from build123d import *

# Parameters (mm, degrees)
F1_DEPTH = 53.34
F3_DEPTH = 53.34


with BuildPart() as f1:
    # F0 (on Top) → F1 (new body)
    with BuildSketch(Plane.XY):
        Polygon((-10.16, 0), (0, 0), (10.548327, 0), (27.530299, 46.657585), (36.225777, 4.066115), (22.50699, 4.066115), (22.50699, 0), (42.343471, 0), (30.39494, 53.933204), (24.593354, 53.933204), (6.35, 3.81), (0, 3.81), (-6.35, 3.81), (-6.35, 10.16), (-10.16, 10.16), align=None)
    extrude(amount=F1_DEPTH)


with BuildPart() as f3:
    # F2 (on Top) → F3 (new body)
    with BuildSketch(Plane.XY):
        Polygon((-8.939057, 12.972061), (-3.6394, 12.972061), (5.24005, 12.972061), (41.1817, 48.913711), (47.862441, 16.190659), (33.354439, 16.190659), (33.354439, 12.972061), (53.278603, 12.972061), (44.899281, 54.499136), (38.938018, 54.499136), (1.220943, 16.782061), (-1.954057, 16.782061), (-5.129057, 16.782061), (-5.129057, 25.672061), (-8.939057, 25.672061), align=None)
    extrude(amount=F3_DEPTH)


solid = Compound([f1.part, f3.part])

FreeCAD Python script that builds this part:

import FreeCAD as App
import Part
import Sketcher

V = App.Vector
Q = App.Units.Quantity


def add_polygon(sketch, points):
    """Adds a closed chain of lines whose ends are joined by coincident constraints."""
    first, n = sketch.GeometryCount, len(points)
    for a, b in zip(points, points[1:] + points[:1]):
        sketch.addGeometry(Part.LineSegment(App.Vector(*a, 0), App.Vector(*b, 0)), False)
    for i in range(n):
        sketch.addConstraint(Sketcher.Constraint("Coincident", first + i, 2, first + (i + 1) % n, 1))

doc = App.newDocument("Part")
body = doc.addObject("PartDesign::Body", "Body")

# Sketch on XY plane
sketch1 = body.newObject("Sketcher::SketchObject", "Sketch")
sketch1.AttachmentSupport = (doc.getObject("XY_Plane"), [""])
sketch1.MapMode = "FlatFace"
add_polygon(sketch1, [(-10.2, 0), (10.5, 0), (27.5, 46.7), (36.2, 4.1), (22.5, 4.1), (22.5, 0), (42.3, 0), (30.4, 53.9), (24.6, 53.9), (6.3, 3.8), (-6.3, 3.8), (-6.3, 10.2), (-10.2, 10.2)])  # lines 0-12
sketch1.addConstraint([
    Sketcher.Constraint("Horizontal", 0),
    Sketcher.Constraint("Horizontal", 3),
    Sketcher.Constraint("Vertical", 4),
    Sketcher.Constraint("Horizontal", 5),
    Sketcher.Constraint("Horizontal", 7),
    Sketcher.Constraint("Horizontal", 9),
    Sketcher.Constraint("Vertical", 10),
    Sketcher.Constraint("Horizontal", 11),
    Sketcher.Constraint("Vertical", 12),
    Sketcher.Constraint("PointOnObject", 0, 2, -1),
    Sketcher.Constraint("PointOnObject", 4, 2, -1),
    Sketcher.Constraint("Parallel", 1, 8),
    Sketcher.Constraint("DistanceX", 9, 2, 9, 1, Q("0.5 in")),
    Sketcher.Constraint("DistanceY", 12, 2, 12, 1, Q("0.4 in")),
    Sketcher.Constraint("Angle", 1, Q("70 deg")),
    Sketcher.Constraint("Distance", 8, Q("2.1 in")),
    Sketcher.Constraint("DistanceX", 11, 2, 11, 1, Q("0.15 in")),
    Sketcher.Constraint("DistanceY", 10, 1, 10, 2, Q("0.25 in")),
    Sketcher.Constraint("DistanceX", 11, 2, -1, 1, Q("0.4 in")),
    Sketcher.Constraint("DistanceX", 5, 1, 5, 2, Q("19.836481 mm")),
    Sketcher.Constraint("DistanceX", -1, 1, 1, 2, Q("27.530299 mm")),
    Sketcher.Constraint("DistanceX", 0, 1, 0, 2, Q("20.708327 mm")),
    Sketcher.Constraint("DistanceX", 3, 2, 3, 1, Q("13.718787 mm")),
    Sketcher.Constraint("DistanceX", 7, 2, 7, 1, Q("5.801586 mm")),
    Sketcher.Constraint("DistanceY", 4, 2, 4, 1, Q("4.066115 mm")),
    Sketcher.Constraint("DistanceX", -1, 1, 3, 2, Q("22.50699 mm")),
])
pad1 = body.newObject("PartDesign::Pad", "Pad")
pad1.Profile = sketch1
pad1.Length = Q("2.1 in")
body2 = doc.addObject("PartDesign::Body", "Body001")

# Sketch on XY plane
sketch2 = body2.newObject("Sketcher::SketchObject", "Sketch001")
sketch2.AttachmentSupport = (doc.getObject("XY_Plane001"), [""])
sketch2.MapMode = "FlatFace"
add_polygon(sketch2, [(-8.9, 13), (5.2, 13), (41.2, 48.9), (47.9, 16.2), (33.4, 16.2), (33.4, 13), (53.3, 13), (44.9, 54.5), (38.9, 54.5), (1.2, 16.8), (-5.1, 16.8), (-5.1, 25.7), (-8.9, 25.7)])  # lines 0-12
sketch2.addConstraint([
    Sketcher.Constraint("Horizontal", 0),
    Sketcher.Constraint("Horizontal", 3),
    Sketcher.Constraint("Vertical", 4),
    Sketcher.Constraint("Horizontal", 5),
    Sketcher.Constraint("Horizontal", 7),
    Sketcher.Constraint("Horizontal", 9),
    Sketcher.Constraint("Vertical", 10),
    Sketcher.Constraint("Horizontal", 11),
    Sketcher.Constraint("Vertical", 12),
    Sketcher.Constraint("Parallel", 1, 8),
    Sketcher.Constraint("Horizontal", 0, 2, 4, 2),
    Sketcher.Constraint("DistanceY", 12, 2, 12, 1, Q("0.5 in")),
    Sketcher.Constraint("Angle", 1, Q("45 deg")),
    Sketcher.Constraint("Distance", 8, Q("2.1 in")),
    Sketcher.Constraint("DistanceX", 9, 2, 9, 1, Q("0.25 in")),
    Sketcher.Constraint("DistanceX", 11, 2, 11, 1, Q("0.15 in")),
    Sketcher.Constraint("DistanceY", 10, 1, 10, 2, Q("0.35 in")),
    Sketcher.Constraint("DistanceX", 3, 2, 3, 1, Q("14.508002 mm")),
    Sketcher.Constraint("DistanceY", 4, 2, 4, 1, Q("3.218598 mm")),
    Sketcher.Constraint("DistanceX", -1, 1, 1, 2, Q("41.1817 mm")),
    Sketcher.Constraint("Distance", 1, Q("50.829169 mm")),
    Sketcher.Constraint("Distance", 2, Q("33.39806 mm")),
    Sketcher.Constraint("Distance", 6, Q("42.364029 mm")),
    Sketcher.Constraint("DistanceX", 0, 1, 0, 2, Q("14.179107 mm")),
    Sketcher.Constraint("DistanceX", 5, 1, 5, 2, Q("19.924164 mm")),
    Sketcher.Constraint("DistanceY", -1, 1, 0, 2, Q("12.972061 mm")),
])
pad2 = body2.newObject("PartDesign::Pad", "Pad001")
pad2.Profile = sketch2
pad2.Length = Q("2.1 in")

doc.recompute()
